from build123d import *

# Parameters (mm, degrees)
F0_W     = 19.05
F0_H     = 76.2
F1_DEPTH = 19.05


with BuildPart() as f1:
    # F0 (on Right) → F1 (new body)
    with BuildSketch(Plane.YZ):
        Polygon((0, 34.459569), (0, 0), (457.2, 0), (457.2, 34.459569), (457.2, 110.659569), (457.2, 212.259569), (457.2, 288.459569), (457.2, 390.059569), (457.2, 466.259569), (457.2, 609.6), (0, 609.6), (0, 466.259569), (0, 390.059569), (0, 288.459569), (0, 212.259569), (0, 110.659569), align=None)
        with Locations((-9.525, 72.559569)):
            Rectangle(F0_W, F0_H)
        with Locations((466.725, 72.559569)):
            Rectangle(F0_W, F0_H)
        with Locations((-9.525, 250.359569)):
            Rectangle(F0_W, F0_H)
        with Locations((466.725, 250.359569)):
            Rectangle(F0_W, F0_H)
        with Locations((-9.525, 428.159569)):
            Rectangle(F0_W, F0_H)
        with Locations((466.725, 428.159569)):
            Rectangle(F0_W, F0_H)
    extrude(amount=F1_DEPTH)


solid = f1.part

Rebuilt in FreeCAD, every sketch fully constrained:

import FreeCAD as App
import Part
import Sketcher
Q = App.Units.Quantity

doc = App.newDocument("Part")
body = doc.addObject("PartDesign::Body", "Body")

# Sketch on YZ plane
sketch1 = body.newObject("Sketcher::SketchObject", "Sketch")
sketch1.AttachmentSupport = (doc.getObject("YZ_Plane"), [""])
sketch1.MapMode = "FlatFace"
sketch1.addGeometry([
    Part.LineSegment(App.Vector(0, 0, 0), App.Vector(457.2, 0, 0)),  # 0
    Part.LineSegment(App.Vector(457.2, 0, 0), App.Vector(457.2, 34.459569, 0)),  # 1
    Part.LineSegment(App.Vector(457.2, 34.459569, 0), App.Vector(476.25, 34.459569, 0)),  # 2
    Part.LineSegment(App.Vector(476.25, 34.459569, 0), App.Vector(476.25, 110.659569, 0)),  # 3
    Part.LineSegment(App.Vector(476.25, 110.659569, 0), App.Vector(457.2, 110.659569, 0)),  # 4
    Part.LineSegment(App.Vector(457.2, 110.659569, 0), App.Vector(457.2, 212.259569, 0)),  # 5
    Part.LineSegment(App.Vector(457.2, 212.259569, 0), App.Vector(476.25, 212.259569, 0)),  # 6
    Part.LineSegment(App.Vector(476.25, 212.259569, 0), App.Vector(476.25, 288.459569, 0)),  # 7
    Part.LineSegment(App.Vector(476.25, 288.459569, 0), App.Vector(457.2, 288.459569, 0)),  # 8
    Part.LineSegment(App.Vector(457.2, 288.459569, 0), App.Vector(457.2, 390.059569, 0)),  # 9
    Part.LineSegment(App.Vector(457.2, 390.059569, 0), App.Vector(476.25, 390.059569, 0)),  # 10
    Part.LineSegment(App.Vector(476.25, 390.059569, 0), App.Vector(476.25, 466.259569, 0)),  # 11
    Part.LineSegment(App.Vector(476.25, 466.259569, 0), App.Vector(457.2, 466.259569, 0)),  # 12
    Part.LineSegment(App.Vector(457.2, 466.259569, 0), App.Vector(457.2, 609.6, 0)),  # 13
    Part.LineSegment(App.Vector(457.2, 609.6, 0), App.Vector(0, 609.6, 0)),  # 14
    Part.LineSegment(App.Vector(0, 609.6, 0), App.Vector(0, 466.259569, 0)),  # 15
    Part.LineSegment(App.Vector(0, 466.259569, 0), App.Vector(-19.05, 466.259569, 0)),  # 16
    Part.LineSegment(App.Vector(-19.05, 466.259569, 0), App.Vector(-19.05, 390.059569, 0)),  # 17
    Part.LineSegment(App.Vector(-19.05, 390.059569, 0), App.Vector(0, 390.059569, 0)),  # 18
    Part.LineSegment(App.Vector(0, 390.059569, 0), App.Vector(0, 288.459569, 0)),  # 19
    Part.LineSegment(App.Vector(0, 288.459569, 0), App.Vector(-19.05, 288.459569, 0)),  # 20
    Part.LineSegment(App.Vector(-19.05, 288.459569, 0), App.Vector(-19.05, 212.259569, 0)),  # 21
    Part.LineSegment(App.Vector(-19.05, 212.259569, 0), App.Vector(0, 212.259569, 0)),  # 22
    Part.LineSegment(App.Vector(0, 212.259569, 0), App.Vector(0, 110.659569, 0)),  # 23
    Part.LineSegment(App.Vector(0, 110.659569, 0), App.Vector(-19.05, 110.659569, 0)),  # 24
    Part.LineSegment(App.Vector(-19.05, 110.659569, 0), App.Vector(-19.05, 34.459569, 0)),  # 25
    Part.LineSegment(App.Vector(-19.05, 34.459569, 0), App.Vector(0, 34.459569, 0)),  # 26
    Part.LineSegment(App.Vector(0, 34.459569, 0), App.Vector(0, 0, 0)),  # 27
], False)
sketch1.addConstraint([
    Sketcher.Constraint("Coincident", 0, 2, 1, 1),
    Sketcher.Constraint("Coincident", 1, 2, 2, 1),
    Sketcher.Constraint("Coincident", 2, 2, 3, 1),
    Sketcher.Constraint("Coincident", 3, 2, 4, 1),
    Sketcher.Constraint("Coincident", 4, 2, 5, 1),
    Sketcher.Constraint("Coincident", 5, 2, 6, 1),
    Sketcher.Constraint("Coincident", 6, 2, 7, 1),
    Sketcher.Constraint("Coincident", 7, 2, 8, 1),
    Sketcher.Constraint("Coincident", 8, 2, 9, 1),
    Sketcher.Constraint("Coincident", 9, 2, 10, 1),
    Sketcher.Constraint("Coincident", 10, 2, 11, 1),
    Sketcher.Constraint("Coincident", 11, 2, 12, 1),
    Sketcher.Constraint("Coincident", 12, 2, 13, 1),
    Sketcher.Constraint("Coincident", 13, 2, 14, 1),
    Sketcher.Constraint("Coincident", 14, 2, 15, 1),
    Sketcher.Constraint("Coincident", 15, 2, 16, 1),
    Sketcher.Constraint("Coincident", 16, 2, 17, 1),
    Sketcher.Constraint("Coincident", 17, 2, 18, 1),
    Sketcher.Constraint("Coincident", 18, 2, 19, 1),
    Sketcher.Constraint("Coincident", 19, 2, 20, 1),
    Sketcher.Constraint("Coincident", 20, 2, 21, 1),
    Sketcher.Constraint("Coincident", 21, 2, 22, 1),
    Sketcher.Constraint("Coincident", 22, 2, 23, 1),
    Sketcher.Constraint("Coincident", 23, 2, 24, 1),
    Sketcher.Constraint("Coincident", 24, 2, 25, 1),
    Sketcher.Constraint("Coincident", 25, 2, 26, 1),
    Sketcher.Constraint("Coincident", 26, 2, 27, 1),
    Sketcher.Constraint("Coincident", 27, 2, 0, 1),
    Sketcher.Constraint("Horizontal", 0),
    Sketcher.Constraint("Vertical", 1),
    Sketcher.Constraint("Horizontal", 2),
    Sketcher.Constraint("Vertical", 3),
    Sketcher.Constraint("Horizontal", 4),
    Sketcher.Constraint("Vertical", 5),
    Sketcher.Constraint("Horizontal", 6),
    Sketcher.Constraint("Vertical", 7),
    Sketcher.Constraint("Horizontal", 8),
    Sketcher.Constraint("Vertical", 9),
    Sketcher.Constraint("Horizontal", 10),
    Sketcher.Constraint("Vertical", 11),
    Sketcher.Constraint("Horizontal", 12),
    Sketcher.Constraint("Vertical", 13),
    Sketcher.Constraint("Horizontal", 14),
    Sketcher.Constraint("Vertical", 15),
    Sketcher.Constraint("Horizontal", 16),
    Sketcher.Constraint("Vertical", 17),
    Sketcher.Constraint("Horizontal", 18),
    Sketcher.Constraint("Vertical", 19),
    Sketcher.Constraint("Horizontal", 20),
    Sketcher.Constraint("Vertical", 21),
    Sketcher.Constraint("Horizontal", 22),
    Sketcher.Constraint("Vertical", 23),
    Sketcher.Constraint("Horizontal", 24),
    Sketcher.Constraint("Vertical", 25),
    Sketcher.Constraint("Horizontal", 26),
    Sketcher.Constraint("Vertical", 27),
    Sketcher.Constraint("Coincident", 27, 2, -1, 1),
    Sketcher.Constraint("PointOnObject", 14, 2, -2),
    Sketcher.Constraint("PointOnObject", 18, 2, -2),
    Sketcher.Constraint("PointOnObject", 22, 2, -2),
    Sketcher.Constraint("Horizontal", 12, 2, 15, 2),
    Sketcher.Constraint("Horizontal", 10, 2, 17, 2),
    Sketcher.Constraint("Horizontal", 8, 2, 19, 2),
    Sketcher.Constraint("Horizontal", 6, 2, 21, 2),
    Sketcher.Constraint("Horizontal", 4, 2, 23, 2),
    Sketcher.Constraint("Horizontal", 2, 2, 25, 2),
    Sketcher.Constraint("Vertical", 1, 2, 4, 2),
    Sketcher.Constraint("Vertical", 3, 2, 6, 2),
    Sketcher.Constraint("Vertical", 5, 2, 8, 2),
    Sketcher.Constraint("Vertical", 7, 2, 10, 2),
    Sketcher.Constraint("Vertical", 9, 2, 12, 2),
    Sketcher.Constraint("Vertical", 17, 2, 20, 2),
    Sketcher.Constraint("Vertical", 21, 2, 24, 2),
    Sketcher.Constraint("Equal", 12, 16),
    Sketcher.Constraint("Equal", 3, 7),
    Sketcher.Constraint("Equal", 5, 9),
    Sketcher.Constraint("Equal", 7, 11),
    Sketcher.Constraint("DistanceX", 0, 1, 0, 2, Q("18 in")),
    Sketcher.Constraint("DistanceY", 3, 1, 3, 2, Q("3 in")),
    Sketcher.Constraint("DistanceY", 5, 1, 5, 2, Q("4 in")),
    Sketcher.Constraint("DistanceY", -1, 1, 13, 2, Q("24 in")),
    Sketcher.Constraint("DistanceX", 2, 1, 2, 2, Q("0.75 in")),
    Sketcher.Constraint("DistanceY", 1, 1, 1, 2, Q("34.459569 mm")),
])
pad1 = body.newObject("PartDesign::Pad", "Pad")
pad1.Profile = sketch1
pad1.Length = Q("0.75 in")

doc.recompute()
